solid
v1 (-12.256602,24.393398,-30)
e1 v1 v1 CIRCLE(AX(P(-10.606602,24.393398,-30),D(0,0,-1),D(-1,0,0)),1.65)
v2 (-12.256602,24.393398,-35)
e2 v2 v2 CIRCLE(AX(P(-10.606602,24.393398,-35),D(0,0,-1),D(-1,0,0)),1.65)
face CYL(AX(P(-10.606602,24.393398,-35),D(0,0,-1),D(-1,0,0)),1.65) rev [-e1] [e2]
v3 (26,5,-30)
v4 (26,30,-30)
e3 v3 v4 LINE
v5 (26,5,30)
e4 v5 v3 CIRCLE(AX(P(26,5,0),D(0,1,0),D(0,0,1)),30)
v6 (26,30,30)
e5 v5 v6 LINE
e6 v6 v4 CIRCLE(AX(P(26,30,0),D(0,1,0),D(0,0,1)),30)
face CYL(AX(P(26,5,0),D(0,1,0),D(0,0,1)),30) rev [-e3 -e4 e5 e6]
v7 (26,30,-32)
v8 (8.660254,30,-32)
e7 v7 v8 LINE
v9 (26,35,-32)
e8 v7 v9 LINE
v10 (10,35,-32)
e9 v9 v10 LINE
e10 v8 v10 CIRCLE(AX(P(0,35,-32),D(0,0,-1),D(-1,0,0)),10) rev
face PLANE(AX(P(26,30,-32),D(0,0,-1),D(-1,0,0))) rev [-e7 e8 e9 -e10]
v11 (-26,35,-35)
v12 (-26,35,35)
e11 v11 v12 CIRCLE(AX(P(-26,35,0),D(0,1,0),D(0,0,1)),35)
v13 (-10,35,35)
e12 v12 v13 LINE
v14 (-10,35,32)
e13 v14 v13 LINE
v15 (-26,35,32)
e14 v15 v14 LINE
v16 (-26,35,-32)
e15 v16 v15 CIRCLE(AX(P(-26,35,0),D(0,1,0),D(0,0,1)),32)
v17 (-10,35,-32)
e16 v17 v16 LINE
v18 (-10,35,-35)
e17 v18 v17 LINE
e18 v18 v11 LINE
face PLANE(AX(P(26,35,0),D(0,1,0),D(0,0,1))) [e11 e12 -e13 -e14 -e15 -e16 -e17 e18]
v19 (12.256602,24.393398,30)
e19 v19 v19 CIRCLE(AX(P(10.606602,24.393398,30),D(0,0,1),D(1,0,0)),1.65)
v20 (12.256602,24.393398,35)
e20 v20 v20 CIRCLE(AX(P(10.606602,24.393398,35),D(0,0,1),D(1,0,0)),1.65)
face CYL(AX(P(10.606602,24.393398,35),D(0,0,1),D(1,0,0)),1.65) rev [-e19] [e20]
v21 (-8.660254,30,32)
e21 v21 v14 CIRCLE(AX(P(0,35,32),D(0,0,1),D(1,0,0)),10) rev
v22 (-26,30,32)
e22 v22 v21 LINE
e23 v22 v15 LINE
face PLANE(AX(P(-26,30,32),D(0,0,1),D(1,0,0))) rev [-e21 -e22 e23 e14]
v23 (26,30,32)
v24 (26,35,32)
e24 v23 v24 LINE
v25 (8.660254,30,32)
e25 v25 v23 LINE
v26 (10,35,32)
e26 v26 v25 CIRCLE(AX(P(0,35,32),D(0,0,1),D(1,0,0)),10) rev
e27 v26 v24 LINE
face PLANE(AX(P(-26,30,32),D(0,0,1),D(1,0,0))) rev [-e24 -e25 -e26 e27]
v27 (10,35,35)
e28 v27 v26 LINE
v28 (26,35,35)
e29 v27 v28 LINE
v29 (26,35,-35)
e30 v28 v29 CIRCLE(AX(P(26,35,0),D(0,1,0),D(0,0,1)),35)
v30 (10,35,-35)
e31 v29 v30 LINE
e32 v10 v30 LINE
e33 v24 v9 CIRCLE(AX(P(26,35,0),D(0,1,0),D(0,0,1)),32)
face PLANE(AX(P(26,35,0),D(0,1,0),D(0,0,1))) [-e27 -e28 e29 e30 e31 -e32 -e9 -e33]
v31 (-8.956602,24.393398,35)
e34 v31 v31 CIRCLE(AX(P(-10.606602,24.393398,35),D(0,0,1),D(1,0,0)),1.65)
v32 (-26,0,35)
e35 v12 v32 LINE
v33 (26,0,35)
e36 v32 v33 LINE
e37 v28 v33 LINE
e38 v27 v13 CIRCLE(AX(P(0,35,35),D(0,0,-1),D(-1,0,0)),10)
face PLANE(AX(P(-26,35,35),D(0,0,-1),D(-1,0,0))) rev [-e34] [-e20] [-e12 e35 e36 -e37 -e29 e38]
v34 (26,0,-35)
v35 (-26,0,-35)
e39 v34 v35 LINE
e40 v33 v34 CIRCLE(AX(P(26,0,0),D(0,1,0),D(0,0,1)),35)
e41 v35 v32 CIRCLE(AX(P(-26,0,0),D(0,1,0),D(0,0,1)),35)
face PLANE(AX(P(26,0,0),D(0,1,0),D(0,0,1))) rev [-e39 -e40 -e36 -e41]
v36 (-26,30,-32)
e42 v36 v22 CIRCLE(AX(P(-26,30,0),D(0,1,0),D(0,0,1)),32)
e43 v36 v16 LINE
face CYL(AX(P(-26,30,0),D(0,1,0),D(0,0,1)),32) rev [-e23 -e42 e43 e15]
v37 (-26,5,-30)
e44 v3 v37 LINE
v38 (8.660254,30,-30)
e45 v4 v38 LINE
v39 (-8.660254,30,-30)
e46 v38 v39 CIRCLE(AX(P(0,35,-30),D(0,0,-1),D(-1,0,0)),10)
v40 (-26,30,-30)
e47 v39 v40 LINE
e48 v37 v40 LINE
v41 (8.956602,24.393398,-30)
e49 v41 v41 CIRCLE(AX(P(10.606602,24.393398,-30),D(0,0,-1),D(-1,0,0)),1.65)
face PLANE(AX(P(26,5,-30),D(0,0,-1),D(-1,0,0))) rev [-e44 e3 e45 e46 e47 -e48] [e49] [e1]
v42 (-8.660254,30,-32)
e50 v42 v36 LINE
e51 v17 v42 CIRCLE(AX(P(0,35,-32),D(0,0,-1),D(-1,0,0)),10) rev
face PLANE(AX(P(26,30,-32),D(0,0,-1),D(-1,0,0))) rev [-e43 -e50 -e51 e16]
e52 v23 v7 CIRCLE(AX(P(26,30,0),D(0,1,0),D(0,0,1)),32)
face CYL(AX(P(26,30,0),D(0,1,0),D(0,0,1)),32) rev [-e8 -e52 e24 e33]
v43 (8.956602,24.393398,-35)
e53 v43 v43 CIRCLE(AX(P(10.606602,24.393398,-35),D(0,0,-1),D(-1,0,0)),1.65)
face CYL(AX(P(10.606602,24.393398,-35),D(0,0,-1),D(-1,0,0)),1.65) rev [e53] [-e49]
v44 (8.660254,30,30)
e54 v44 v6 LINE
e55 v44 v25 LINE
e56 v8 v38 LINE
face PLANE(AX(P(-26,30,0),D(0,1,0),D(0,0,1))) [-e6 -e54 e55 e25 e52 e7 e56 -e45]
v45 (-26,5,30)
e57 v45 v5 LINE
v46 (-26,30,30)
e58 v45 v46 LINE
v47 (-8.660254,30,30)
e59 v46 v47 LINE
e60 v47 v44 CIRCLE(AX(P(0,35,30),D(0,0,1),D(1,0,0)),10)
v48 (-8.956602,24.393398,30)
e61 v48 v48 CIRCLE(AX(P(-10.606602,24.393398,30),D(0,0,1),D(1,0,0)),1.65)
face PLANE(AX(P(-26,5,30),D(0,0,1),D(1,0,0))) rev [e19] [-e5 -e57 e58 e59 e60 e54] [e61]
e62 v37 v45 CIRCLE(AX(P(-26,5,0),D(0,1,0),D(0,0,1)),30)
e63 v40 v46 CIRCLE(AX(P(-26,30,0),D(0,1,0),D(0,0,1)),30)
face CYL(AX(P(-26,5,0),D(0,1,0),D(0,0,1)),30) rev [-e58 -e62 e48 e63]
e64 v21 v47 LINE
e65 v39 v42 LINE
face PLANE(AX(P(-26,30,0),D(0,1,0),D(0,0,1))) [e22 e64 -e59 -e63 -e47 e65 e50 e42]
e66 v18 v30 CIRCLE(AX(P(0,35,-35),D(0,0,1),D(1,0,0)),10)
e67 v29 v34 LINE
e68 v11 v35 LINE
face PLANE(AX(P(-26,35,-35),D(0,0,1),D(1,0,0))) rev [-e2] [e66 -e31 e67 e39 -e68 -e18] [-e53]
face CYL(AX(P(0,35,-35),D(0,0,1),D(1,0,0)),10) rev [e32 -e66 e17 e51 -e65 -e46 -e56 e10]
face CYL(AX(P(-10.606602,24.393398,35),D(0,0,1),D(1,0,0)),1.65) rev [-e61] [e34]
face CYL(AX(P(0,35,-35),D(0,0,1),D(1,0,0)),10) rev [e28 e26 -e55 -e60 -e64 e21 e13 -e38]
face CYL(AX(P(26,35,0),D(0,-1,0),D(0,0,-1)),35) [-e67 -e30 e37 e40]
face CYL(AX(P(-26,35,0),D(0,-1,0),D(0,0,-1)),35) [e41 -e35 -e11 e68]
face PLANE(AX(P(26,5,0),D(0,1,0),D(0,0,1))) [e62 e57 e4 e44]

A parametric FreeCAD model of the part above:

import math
import FreeCAD as App
import Part
import Sketcher
from FreeCAD import Vector

doc = App.newDocument("Part")
params = doc.addObject("Spreadsheet::Sheet", "Params")
for row, (alias, value) in enumerate([
    ("sketch1_radius", "35 mm"),
    ("sketch1_width", "52 mm"),
    ("pad1_length", "35 mm"),
    ("sketch2_radius", "30 mm"),
    ("sketch2_width", "52 mm"),
    ("pocket1_length", "30 mm"),
    ("sketch3_diameter", "20 mm"),
    ("sketch4_radius", "32 mm"),
    ("sketch4_radius2", "30 mm"),
    ("sketch4_width", "52 mm"),
    ("pocket3_length", "5 mm"),
    ("sketch5_diameter", "3.3 mm"),
    ("hole_diameter", "3.3 mm"),
    ("hole_depth", "5 mm"),
    ("sketch6_diameter", "3.3 mm"),
    ("hole2_diameter", "3.3 mm"),
    ("hole2_depth", "5 mm"),
], start=1):
    params.set(f"A{row}", alias)
    params.set(f"B{row}", "=" + value)
    params.setAlias(f"B{row}", alias)

body = doc.addObject("PartDesign::Body", "Body")

sketch1 = doc.addObject("Sketcher::SketchObject", "Sketch")
body.addObject(sketch1)
sketch1.AttachmentSupport = (doc.XZ_Plane, [""])
sketch1.MapMode = "FlatFace"
sketch1.addGeometry([
    Part.LineSegment(Vector(26, -35, 0), Vector(-26, -35, 0)),
    Part.ArcOfCircle(Part.Circle(Vector(-26, 0, 0), Vector(0, 0, 1), 35), math.radians(90), math.radians(270)),
    Part.LineSegment(Vector(-26, 35, 0), Vector(26, 35, 0)),
    Part.ArcOfCircle(Part.Circle(Vector(26, 0, 0), Vector(0, 0, 1), 35), math.radians(-90), math.radians(90)),
], False)
sketch1.addConstraint([
    Sketcher.Constraint("Tangent", 0, 2, 1, 2),
    Sketcher.Constraint("Tangent", 1, 1, 2, 1),
    Sketcher.Constraint("Tangent", 2, 2, 3, 2),
    Sketcher.Constraint("Tangent", 3, 1, 0, 1),
    Sketcher.Constraint("Horizontal", 0),
    Sketcher.Constraint("Horizontal", 2),
    Sketcher.Constraint("Symmetric", 1, 3, 3, 3, -1, 1),
    Sketcher.Constraint("Radius", 1, 35.0),
    Sketcher.Constraint("DistanceX", 0, 2, 0, 1, 52.0),
])
sketch1.setExpression("Constraints[7]", "Params.sketch1_radius")
sketch1.setExpression("Constraints[8]", "Params.sketch1_width")
pad1 = doc.addObject("PartDesign::Pad", "Pad")
body.addObject(pad1)
pad1.Profile = sketch1
pad1.setExpression("Length", "Params.pad1_length")
pad1.Reversed = True

sketch2 = doc.addObject("Sketcher::SketchObject", "Sketch001")
body.addObject(sketch2)
sketch2.AttachmentSupport = (doc.XZ_Plane, [""])
sketch2.MapMode = "FlatFace"
sketch2.AttachmentOffset = App.Placement(Vector(0, 0, -35), App.Rotation())
sketch2.addGeometry([
    Part.LineSegment(Vector(26, -30, 0), Vector(-26, -30, 0)),
    Part.ArcOfCircle(Part.Circle(Vector(-26, 0, 0), Vector(0, 0, 1), 30), math.radians(90), math.radians(270)),
    Part.LineSegment(Vector(-26, 30, 0), Vector(26, 30, 0)),
    Part.ArcOfCircle(Part.Circle(Vector(26, 0, 0), Vector(0, 0, 1), 30), math.radians(-90), math.radians(90)),
], False)
sketch2.addConstraint([
    Sketcher.Constraint("Tangent", 0, 2, 1, 2),
    Sketcher.Constraint("Tangent", 1, 1, 2, 1),
    Sketcher.Constraint("Tangent", 2, 2, 3, 2),
    Sketcher.Constraint("Tangent", 3, 1, 0, 1),
    Sketcher.Constraint("Horizontal", 0),
    Sketcher.Constraint("Horizontal", 2),
    Sketcher.Constraint("Symmetric", 1, 3, 3, 3, -1, 1),
    Sketcher.Constraint("Radius", 1, 30.0),
    Sketcher.Constraint("DistanceX", 0, 2, 0, 1, 52.0),
])
sketch2.setExpression("Constraints[7]", "Params.sketch2_radius")
sketch2.setExpression("Constraints[8]", "Params.sketch2_width")
pocket1 = doc.addObject("PartDesign::Pocket", "Pocket")
body.addObject(pocket1)
pocket1.Profile = sketch2
pocket1.setExpression("Length", "Params.pocket1_length")
pocket1.Reversed = True

sketch3 = doc.addObject("Sketcher::SketchObject", "Sketch002")
body.addObject(sketch3)
sketch3.AttachmentSupport = (doc.XY_Plane, [""])
sketch3.MapMode = "FlatFace"
sketch3.AttachmentOffset = App.Placement(Vector(0, 0, 35), App.Rotation())
sketch3.addGeometry(Part.Circle(Vector(0, 35, 0), Vector(0, 0, 1), 10), False)
sketch3.addConstraint([
    Sketcher.Constraint("PointOnObject", 0, 3, -2),
    Sketcher.Constraint("Diameter", 0, 20.0),
    Sketcher.Constraint("DistanceY", -1, 1, 0, 3, 35.0),
])
sketch3.setExpression("Constraints[1]", "Params.sketch3_diameter")
pocket2 = doc.addObject("PartDesign::Pocket", "Pocket001")
body.addObject(pocket2)
pocket2.Profile = sketch3
pocket2.Type = "ThroughAll"
pocket2.Midplane = True

sketch4 = doc.addObject("Sketcher::SketchObject", "Sketch003")
body.addObject(sketch4)
sketch4.AttachmentSupport = (doc.XZ_Plane, [""])
sketch4.MapMode = "FlatFace"
sketch4.AttachmentOffset = App.Placement(Vector(0, 0, -35), App.Rotation())
sketch4.addGeometry([
    Part.LineSegment(Vector(-26, 32, 0), Vector(26, 32, 0)),
    Part.ArcOfCircle(Part.Circle(Vector(26, 0, 0), Vector(0, 0, 1), 32), math.radians(-90), math.radians(90)),
    Part.LineSegment(Vector(26, -32, 0), Vector(-26, -32, 0)),
    Part.ArcOfCircle(Part.Circle(Vector(-26, 0, 0), Vector(0, 0, 1), 32), math.radians(90), math.radians(270)),
    Part.LineSegment(Vector(26, 30, 0), Vector(-26, 30, 0)),
    Part.ArcOfCircle(Part.Circle(Vector(-26, 0, 0), Vector(0, 0, 1), 30), math.radians(90), math.radians(270)),
    Part.LineSegment(Vector(-26, -30, 0), Vector(26, -30, 0)),
    Part.ArcOfCircle(Part.Circle(Vector(26, 0, 0), Vector(0, 0, 1), 30), math.radians(-90), math.radians(90)),
], False)
sketch4.addConstraint([
    Sketcher.Constraint("Tangent", 0, 2, 1, 2),
    Sketcher.Constraint("Tangent", 1, 1, 2, 1),
    Sketcher.Constraint("Tangent", 2, 2, 3, 2),
    Sketcher.Constraint("Tangent", 3, 1, 0, 1),
    Sketcher.Constraint("Tangent", 4, 2, 5, 1),
    Sketcher.Constraint("Tangent", 5, 2, 6, 1),
    Sketcher.Constraint("Tangent", 6, 2, 7, 1),
    Sketcher.Constraint("Tangent", 7, 2, 4, 1),
    Sketcher.Constraint("Horizontal", 0),
    Sketcher.Constraint("Horizontal", 2),
    Sketcher.Constraint("Horizontal", 4),
    Sketcher.Constraint("Horizontal", 6),
    Sketcher.Constraint("Coincident", 5, 3, 3, 3),
    Sketcher.Constraint("Symmetric", 1, 3, 3, 3, -1, 1),
    Sketcher.Constraint("Vertical", 7, 3, 0, 2),
    Sketcher.Constraint("Radius", 1, 32.0),
    Sketcher.Constraint("Radius", 5, 30.0),
    Sketcher.Constraint("DistanceX", 0, 1, 0, 2, 52.0),
])
sketch4.setExpression("Constraints[15]", "Params.sketch4_radius")
sketch4.setExpression("Constraints[16]", "Params.sketch4_radius2")
sketch4.setExpression("Constraints[17]", "Params.sketch4_width")
pocket3 = doc.addObject("PartDesign::Pocket", "Pocket002")
body.addObject(pocket3)
pocket3.Profile = sketch4
pocket3.setExpression("Length", "Params.pocket3_length")
pocket3.Reversed = True

sketch5 = doc.addObject("Sketcher::SketchObject", "Sketch004")
body.addObject(sketch5)
sketch5.AttachmentSupport = (doc.XY_Plane, [""])
sketch5.MapMode = "FlatFace"
sketch5.AttachmentOffset = App.Placement(Vector(0, 0, 35), App.Rotation())
sketch5.addGeometry([
    Part.Circle(Vector(-10.6, 24.4, 0), Vector(0, 0, 1), 1.6),
    Part.Circle(Vector(10.6, 24.4, 0), Vector(0, 0, 1), 1.6),
], False)
sketch5.addConstraint([
    Sketcher.Constraint("Equal", 0, 1),
    Sketcher.Constraint("Symmetric", 0, 3, 1, 3, -2),
    Sketcher.Constraint("Diameter", 0, 3.3),
    Sketcher.Constraint("DistanceX", 0, 3, -1, 1, 10.606602),
    Sketcher.Constraint("DistanceY", -1, 1, 0, 3, 24.393398),
])
sketch5.setExpression("Constraints[2]", "Params.sketch5_diameter")
doc.recompute()
hole = doc.addObject("PartDesign::Hole", "Hole")
body.addObject(hole)
hole.Profile = sketch5
hole.ThreadType = "None"
hole.setExpression("Diameter", "Params.hole_diameter")
hole.DepthType = "Dimension"
hole.setExpression("Depth", "Params.hole_depth")
hole.DrillPoint = "Flat"

sketch6 = doc.addObject("Sketcher::SketchObject", "Sketch005")
body.addObject(sketch6)
sketch6.AttachmentSupport = (doc.XY_Plane, [""])
sketch6.MapMode = "FlatFace"
sketch6.AttachmentOffset = App.Placement(Vector(0, 0, -35), App.Rotation())
sketch6.addGeometry([
    Part.Circle(Vector(10.6, 24.4, 0), Vector(0, 0, 1), 1.6),
    Part.Circle(Vector(-10.6, 24.4, 0), Vector(0, 0, 1), 1.6),
], False)
sketch6.addConstraint([
    Sketcher.Constraint("Equal", 0, 1),
    Sketcher.Constraint("Symmetric", 0, 3, 1, 3, -2),
    Sketcher.Constraint("Diameter", 0, 3.3),
    Sketcher.Constraint("DistanceX", -1, 1, 0, 3, 10.606602),
    Sketcher.Constraint("DistanceY", -1, 1, 0, 3, 24.393398),
])
sketch6.setExpression("Constraints[2]", "Params.sketch6_diameter")
doc.recompute()
hole2 = doc.addObject("PartDesign::Hole", "Hole001")
body.addObject(hole2)
hole2.Profile = sketch6
hole2.ThreadType = "None"
hole2.setExpression("Diameter", "Params.hole2_diameter")
hole2.DepthType = "Dimension"
hole2.setExpression("Depth", "Params.hole2_depth")
hole2.DrillPoint = "Flat"
hole2.Reversed = True

doc.recompute()
